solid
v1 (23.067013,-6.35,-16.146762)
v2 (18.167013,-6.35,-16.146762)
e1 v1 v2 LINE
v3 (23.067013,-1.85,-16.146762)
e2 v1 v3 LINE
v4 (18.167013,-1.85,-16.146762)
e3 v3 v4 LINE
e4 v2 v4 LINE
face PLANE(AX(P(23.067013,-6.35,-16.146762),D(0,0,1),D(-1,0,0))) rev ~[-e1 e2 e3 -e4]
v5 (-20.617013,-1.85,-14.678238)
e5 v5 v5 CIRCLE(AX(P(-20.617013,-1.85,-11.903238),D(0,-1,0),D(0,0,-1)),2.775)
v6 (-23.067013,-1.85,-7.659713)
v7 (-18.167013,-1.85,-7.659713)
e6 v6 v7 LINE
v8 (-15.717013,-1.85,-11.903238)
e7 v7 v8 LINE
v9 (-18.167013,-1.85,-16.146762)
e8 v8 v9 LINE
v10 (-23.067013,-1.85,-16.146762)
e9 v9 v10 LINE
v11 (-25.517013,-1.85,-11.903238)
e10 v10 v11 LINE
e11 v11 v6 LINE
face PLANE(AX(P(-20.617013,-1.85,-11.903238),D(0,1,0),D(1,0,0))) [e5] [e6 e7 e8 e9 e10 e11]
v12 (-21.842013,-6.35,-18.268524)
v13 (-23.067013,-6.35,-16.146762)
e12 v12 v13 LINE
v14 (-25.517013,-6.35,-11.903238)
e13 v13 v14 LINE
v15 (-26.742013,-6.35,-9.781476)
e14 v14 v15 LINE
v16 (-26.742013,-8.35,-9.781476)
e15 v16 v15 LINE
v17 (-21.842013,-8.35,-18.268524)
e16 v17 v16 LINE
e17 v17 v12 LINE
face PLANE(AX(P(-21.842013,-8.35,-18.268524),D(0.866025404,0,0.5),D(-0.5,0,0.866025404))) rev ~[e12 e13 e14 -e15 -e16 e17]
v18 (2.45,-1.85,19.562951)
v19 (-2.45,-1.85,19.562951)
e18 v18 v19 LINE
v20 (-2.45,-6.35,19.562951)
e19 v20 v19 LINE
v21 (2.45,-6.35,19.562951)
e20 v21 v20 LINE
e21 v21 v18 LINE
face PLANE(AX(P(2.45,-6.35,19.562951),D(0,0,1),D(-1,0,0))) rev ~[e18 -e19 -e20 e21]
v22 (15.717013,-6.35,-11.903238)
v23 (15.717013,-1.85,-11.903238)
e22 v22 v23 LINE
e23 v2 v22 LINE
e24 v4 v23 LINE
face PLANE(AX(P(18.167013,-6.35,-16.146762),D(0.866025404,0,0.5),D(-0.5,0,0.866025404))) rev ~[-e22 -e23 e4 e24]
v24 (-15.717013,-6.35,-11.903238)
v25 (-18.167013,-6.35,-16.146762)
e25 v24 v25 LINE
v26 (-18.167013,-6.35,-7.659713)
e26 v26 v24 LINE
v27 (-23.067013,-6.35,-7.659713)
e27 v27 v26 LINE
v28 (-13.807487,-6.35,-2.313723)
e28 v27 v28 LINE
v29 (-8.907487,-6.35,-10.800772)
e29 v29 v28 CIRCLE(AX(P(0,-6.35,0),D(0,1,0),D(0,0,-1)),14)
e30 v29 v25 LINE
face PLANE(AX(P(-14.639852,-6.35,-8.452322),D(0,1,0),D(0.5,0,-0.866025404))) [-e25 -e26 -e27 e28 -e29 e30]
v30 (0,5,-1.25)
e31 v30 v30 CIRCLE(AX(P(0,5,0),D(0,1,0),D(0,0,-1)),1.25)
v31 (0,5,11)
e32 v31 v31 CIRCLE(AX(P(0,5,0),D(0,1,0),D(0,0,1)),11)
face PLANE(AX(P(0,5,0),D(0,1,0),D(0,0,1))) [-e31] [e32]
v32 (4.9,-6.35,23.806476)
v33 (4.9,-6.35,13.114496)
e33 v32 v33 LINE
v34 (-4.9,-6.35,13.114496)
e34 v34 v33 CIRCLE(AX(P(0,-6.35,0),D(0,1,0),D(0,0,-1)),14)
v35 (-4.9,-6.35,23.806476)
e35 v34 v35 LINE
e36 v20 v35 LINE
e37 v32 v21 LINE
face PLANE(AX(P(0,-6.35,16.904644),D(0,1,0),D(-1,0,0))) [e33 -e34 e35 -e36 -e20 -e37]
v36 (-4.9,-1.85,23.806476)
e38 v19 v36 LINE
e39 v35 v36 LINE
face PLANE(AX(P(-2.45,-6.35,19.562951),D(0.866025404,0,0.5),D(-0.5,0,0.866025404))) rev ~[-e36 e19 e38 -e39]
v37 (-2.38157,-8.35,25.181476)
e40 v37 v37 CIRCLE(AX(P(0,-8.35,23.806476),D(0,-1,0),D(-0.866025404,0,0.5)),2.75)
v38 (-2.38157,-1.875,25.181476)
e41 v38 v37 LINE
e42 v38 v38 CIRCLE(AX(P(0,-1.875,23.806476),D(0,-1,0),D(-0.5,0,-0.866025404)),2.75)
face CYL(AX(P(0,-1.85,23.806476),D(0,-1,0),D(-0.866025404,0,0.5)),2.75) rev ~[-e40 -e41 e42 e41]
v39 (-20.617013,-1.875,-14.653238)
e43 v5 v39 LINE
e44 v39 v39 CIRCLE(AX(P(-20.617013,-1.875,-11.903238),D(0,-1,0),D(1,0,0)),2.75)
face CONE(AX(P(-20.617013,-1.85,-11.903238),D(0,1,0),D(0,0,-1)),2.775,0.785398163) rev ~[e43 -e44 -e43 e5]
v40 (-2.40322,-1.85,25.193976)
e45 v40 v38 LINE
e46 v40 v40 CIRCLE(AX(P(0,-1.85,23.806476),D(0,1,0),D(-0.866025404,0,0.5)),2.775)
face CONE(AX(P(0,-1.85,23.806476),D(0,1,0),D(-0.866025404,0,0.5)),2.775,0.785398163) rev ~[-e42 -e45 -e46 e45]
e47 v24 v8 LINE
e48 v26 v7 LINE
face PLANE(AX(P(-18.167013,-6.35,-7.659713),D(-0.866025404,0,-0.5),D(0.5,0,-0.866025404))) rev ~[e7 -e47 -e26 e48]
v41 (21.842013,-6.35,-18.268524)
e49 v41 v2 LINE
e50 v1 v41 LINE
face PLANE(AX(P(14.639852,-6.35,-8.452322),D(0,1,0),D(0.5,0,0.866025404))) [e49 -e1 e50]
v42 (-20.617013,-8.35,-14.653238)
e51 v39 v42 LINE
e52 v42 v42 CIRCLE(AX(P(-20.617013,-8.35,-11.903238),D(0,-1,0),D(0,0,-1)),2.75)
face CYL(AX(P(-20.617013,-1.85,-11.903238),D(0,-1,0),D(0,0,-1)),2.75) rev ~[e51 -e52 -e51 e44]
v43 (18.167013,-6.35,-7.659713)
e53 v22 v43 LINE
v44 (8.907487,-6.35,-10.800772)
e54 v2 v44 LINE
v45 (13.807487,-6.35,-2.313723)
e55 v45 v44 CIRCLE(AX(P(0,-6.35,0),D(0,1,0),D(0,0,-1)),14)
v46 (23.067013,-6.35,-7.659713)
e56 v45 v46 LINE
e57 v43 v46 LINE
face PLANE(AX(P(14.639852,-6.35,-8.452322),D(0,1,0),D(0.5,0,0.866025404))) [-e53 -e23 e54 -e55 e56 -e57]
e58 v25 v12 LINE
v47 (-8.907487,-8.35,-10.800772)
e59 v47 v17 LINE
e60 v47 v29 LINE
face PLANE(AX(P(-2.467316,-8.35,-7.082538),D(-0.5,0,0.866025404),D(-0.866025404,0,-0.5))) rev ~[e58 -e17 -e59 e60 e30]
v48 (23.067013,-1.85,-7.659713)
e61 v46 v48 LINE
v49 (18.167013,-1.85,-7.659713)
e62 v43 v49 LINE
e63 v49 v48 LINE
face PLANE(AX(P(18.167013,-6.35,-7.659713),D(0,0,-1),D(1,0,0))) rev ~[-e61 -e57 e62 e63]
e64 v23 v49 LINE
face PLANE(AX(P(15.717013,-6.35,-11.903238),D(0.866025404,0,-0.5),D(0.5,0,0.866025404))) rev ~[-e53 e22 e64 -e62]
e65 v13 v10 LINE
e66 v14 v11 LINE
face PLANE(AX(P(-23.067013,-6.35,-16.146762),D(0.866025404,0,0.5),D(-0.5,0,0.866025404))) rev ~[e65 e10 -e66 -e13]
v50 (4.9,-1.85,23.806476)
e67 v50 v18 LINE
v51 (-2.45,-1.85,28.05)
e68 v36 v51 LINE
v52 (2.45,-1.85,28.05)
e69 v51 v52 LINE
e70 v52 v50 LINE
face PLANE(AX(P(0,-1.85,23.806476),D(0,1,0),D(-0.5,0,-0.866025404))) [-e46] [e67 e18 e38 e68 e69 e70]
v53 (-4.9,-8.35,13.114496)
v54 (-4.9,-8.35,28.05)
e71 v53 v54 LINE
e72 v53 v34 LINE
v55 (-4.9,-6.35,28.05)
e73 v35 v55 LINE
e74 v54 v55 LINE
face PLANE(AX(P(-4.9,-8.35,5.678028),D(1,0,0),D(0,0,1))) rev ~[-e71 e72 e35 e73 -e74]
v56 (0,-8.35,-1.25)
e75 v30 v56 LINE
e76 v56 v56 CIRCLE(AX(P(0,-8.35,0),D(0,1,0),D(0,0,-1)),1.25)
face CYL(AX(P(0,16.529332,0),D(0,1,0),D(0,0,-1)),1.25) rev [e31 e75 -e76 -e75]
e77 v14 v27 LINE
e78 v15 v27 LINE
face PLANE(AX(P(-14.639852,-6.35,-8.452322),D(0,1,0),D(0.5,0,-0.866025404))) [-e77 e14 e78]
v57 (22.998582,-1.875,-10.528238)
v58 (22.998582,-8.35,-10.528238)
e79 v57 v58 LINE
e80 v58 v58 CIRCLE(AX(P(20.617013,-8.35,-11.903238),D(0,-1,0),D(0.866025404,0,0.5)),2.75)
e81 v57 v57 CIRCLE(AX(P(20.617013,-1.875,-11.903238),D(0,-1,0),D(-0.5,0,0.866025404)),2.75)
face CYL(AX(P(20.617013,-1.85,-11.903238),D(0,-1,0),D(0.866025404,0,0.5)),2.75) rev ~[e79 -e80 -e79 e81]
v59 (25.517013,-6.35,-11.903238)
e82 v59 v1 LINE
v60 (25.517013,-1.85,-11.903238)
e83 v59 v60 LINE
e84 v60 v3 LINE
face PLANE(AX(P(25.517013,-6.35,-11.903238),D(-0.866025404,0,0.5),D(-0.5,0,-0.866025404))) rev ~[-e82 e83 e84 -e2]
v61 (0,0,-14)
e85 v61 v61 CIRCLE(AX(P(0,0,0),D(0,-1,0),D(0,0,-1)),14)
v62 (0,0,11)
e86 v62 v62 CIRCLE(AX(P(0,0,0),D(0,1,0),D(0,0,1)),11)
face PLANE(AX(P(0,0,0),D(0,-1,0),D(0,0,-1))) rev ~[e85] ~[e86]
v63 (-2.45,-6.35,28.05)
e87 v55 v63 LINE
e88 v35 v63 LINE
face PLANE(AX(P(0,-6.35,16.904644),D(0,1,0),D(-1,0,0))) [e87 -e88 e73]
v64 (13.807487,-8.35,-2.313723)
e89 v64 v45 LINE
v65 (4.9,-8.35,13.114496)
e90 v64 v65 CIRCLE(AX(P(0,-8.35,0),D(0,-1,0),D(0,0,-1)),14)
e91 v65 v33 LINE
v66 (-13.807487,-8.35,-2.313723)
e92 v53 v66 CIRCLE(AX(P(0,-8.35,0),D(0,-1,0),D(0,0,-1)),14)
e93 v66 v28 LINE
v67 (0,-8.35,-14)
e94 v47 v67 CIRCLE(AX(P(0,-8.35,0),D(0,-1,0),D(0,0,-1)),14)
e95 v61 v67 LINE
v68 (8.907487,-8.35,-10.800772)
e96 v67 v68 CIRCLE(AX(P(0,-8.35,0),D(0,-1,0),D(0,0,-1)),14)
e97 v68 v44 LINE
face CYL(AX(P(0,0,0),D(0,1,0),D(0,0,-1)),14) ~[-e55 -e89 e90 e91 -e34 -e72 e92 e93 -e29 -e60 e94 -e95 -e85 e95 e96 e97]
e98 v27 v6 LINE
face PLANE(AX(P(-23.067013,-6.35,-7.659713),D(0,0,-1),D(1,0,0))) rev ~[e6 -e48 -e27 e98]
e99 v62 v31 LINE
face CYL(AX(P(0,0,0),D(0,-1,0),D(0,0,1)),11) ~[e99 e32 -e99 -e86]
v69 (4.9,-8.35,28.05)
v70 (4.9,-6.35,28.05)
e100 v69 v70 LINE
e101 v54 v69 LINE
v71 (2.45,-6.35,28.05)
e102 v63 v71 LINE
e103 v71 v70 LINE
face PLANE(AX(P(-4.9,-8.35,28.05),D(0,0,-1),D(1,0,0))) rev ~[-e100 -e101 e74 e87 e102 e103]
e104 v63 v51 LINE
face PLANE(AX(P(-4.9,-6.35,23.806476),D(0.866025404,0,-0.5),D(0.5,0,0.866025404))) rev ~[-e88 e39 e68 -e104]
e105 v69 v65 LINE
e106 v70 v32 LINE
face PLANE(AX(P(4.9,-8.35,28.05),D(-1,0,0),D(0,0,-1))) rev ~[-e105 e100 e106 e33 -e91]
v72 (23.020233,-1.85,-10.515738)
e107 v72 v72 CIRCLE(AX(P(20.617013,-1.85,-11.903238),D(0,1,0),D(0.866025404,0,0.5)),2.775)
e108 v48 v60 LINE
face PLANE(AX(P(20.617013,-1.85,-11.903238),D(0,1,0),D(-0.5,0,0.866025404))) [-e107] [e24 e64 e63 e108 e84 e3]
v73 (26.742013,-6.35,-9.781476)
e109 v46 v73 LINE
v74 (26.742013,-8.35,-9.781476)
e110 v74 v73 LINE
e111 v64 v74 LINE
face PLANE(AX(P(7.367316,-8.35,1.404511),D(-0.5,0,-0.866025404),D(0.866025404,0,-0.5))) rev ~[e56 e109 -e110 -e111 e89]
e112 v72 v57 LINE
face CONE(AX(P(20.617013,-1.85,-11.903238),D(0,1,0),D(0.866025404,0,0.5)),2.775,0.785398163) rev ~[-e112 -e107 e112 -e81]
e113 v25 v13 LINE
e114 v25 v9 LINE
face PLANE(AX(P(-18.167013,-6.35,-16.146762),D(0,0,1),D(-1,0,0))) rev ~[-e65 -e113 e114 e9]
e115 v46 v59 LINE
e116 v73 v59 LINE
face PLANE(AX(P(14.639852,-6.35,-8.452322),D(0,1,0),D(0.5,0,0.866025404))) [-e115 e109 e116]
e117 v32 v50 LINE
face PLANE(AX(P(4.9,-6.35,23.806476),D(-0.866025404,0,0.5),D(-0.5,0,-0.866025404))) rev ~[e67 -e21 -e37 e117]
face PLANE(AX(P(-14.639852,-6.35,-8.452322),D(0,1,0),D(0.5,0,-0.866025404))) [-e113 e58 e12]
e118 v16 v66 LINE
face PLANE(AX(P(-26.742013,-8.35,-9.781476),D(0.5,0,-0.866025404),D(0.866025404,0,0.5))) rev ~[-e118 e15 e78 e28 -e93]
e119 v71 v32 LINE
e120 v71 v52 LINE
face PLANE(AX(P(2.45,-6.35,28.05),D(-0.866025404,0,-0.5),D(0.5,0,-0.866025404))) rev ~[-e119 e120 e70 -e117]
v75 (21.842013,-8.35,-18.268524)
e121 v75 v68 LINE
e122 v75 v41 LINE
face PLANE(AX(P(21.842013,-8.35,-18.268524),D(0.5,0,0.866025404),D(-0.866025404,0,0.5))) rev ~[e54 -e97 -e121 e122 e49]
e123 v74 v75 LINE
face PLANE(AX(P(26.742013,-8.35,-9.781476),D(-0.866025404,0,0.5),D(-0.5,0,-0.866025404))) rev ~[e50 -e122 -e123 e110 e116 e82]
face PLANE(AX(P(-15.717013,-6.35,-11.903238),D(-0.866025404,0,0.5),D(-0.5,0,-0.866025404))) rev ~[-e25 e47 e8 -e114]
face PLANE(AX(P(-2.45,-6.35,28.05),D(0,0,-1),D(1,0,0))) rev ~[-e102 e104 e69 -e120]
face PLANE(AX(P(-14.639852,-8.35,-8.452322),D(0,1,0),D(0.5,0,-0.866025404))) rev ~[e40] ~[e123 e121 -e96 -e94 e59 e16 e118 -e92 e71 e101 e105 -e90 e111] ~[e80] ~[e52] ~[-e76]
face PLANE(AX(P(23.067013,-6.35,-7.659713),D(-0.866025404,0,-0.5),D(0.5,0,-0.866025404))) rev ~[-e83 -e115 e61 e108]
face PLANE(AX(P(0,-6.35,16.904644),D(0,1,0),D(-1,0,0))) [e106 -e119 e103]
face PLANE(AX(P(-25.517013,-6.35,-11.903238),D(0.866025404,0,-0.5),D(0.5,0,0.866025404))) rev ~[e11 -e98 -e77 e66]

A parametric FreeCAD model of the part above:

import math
import FreeCAD as App
import Part
import Sketcher
Q = App.Units.Quantity

doc = App.newDocument("Part")
body = doc.addObject("PartDesign::Body", "Body")

# Sketch on XZ plane
sketch1 = body.newObject("Sketcher::SketchObject", "Sketch")
sketch1.AttachmentSupport = (doc.getObject("XZ_Plane"), [""])
sketch1.MapMode = "FlatFace"
sketch1.addGeometry(Part.Circle(App.Vector(0, 0, 0), App.Vector(0, 0, 1), 11), False)
sketch1.addConstraint([
    Sketcher.Constraint("Coincident", 0, 3, -1, 1),
    Sketcher.Constraint("Diameter", 0, 22.0),
])
pad1 = body.newObject("PartDesign::Pad", "Pad")
pad1.Profile = sketch1
pad1.Length = 5
pad1.Reversed = True

# Sketch on XZ plane
sketch2 = body.newObject("Sketcher::SketchObject", "Sketch001")
sketch2.AttachmentSupport = (doc.getObject("XZ_Plane"), [""])
sketch2.MapMode = "FlatFace"
sketch2.addGeometry(Part.Circle(App.Vector(0, 0, 0), App.Vector(0, 0, 1), 14), False)
sketch2.addConstraint([
    Sketcher.Constraint("Coincident", 0, 3, -1, 1),
    Sketcher.Constraint("Diameter", 0, 28.0),
])
pad2 = body.newObject("PartDesign::Pad", "Pad001")
pad2.Profile = sketch2
pad2.Length = 8.35

# Sketch on XZ plane
sketch3 = body.newObject("Sketcher::SketchObject", "Sketch002")
sketch3.AttachmentSupport = (doc.getObject("XZ_Plane"), [""])
sketch3.MapMode = "FlatFace"
sketch3.AttachmentOffset = App.Placement(App.Vector(0, 0, 8.35), App.Rotation())
sketch3.addGeometry(Part.Circle(App.Vector(0, 0, 0), App.Vector(0, 0, 1), 1.2), False)
sketch3.addConstraint([
    Sketcher.Constraint("Coincident", 0, 3, -1, 1),
    Sketcher.Constraint("Diameter", 0, 2.5),
])
pocket1 = body.newObject("PartDesign::Pocket", "Pocket")
pocket1.Profile = sketch3
pocket1.Type = "ThroughAll"
pocket1.Midplane = True

# Sketch on XZ plane
sketch4 = body.newObject("Sketcher::SketchObject", "Sketch003")
sketch4.AttachmentSupport = (doc.getObject("XZ_Plane"), [""])
sketch4.MapMode = "FlatFace"
sketch4.AttachmentOffset = App.Placement(App.Vector(0, 0, 8.35), App.Rotation())
sketch4.addGeometry([
    Part.LineSegment(App.Vector(5, 28, 0), App.Vector(-5, 28, 0)),
    Part.LineSegment(App.Vector(-5, 28, 0), App.Vector(-5, 6, 0)),
    Part.ArcOfCircle(Part.Circle(App.Vector(0, 0, 0), App.Vector(0, 0, 1), 8), math.radians(49), math.radians(131)),
    Part.LineSegment(App.Vector(5, 6, 0), App.Vector(5, 28, 0)),
], False)
sketch4.addConstraint([
    Sketcher.Constraint("Coincident", 0, 2, 1, 1),
    Sketcher.Constraint("Coincident", 1, 2, 2, 2),
    Sketcher.Constraint("Coincident", 2, 1, 3, 1),
    Sketcher.Constraint("Coincident", 3, 2, 0, 1),
    Sketcher.Constraint("Horizontal", 0),
    Sketcher.Constraint("Vertical", 1),
    Sketcher.Constraint("Vertical", 3),
    Sketcher.Constraint("Coincident", 2, 3, -1, 1),
    Sketcher.Constraint("Horizontal", 1, 2, 2, 1),
    Sketcher.Constraint("Radius", 2, 7.5),
    Sketcher.Constraint("DistanceX", 0, 2, 0, 1, 9.8),
    Sketcher.Constraint("DistanceY", -1, 1, 0, 2, 28.05),
])
pad3 = body.newObject("PartDesign::Pad", "Pad002")
pad3.Profile = sketch4
pad3.Length = 2
pad3.Reversed = True
doc.recompute()

polarpattern = body.newObject("PartDesign::PolarPattern", "PolarPattern")
polarpattern.Originals = [pad3]
polarpattern.Axis = (doc.getObject("Y_Axis"), [""])
polarpattern.Angle = 360
polarpattern.Occurrences = 3
body.Tip = polarpattern

# Sketch on XZ plane
sketch5 = body.newObject("Sketcher::SketchObject", "Sketch004")
sketch5.AttachmentSupport = (doc.getObject("XZ_Plane"), [""])
sketch5.MapMode = "FlatFace"
sketch5.AttachmentOffset = App.Placement(App.Vector(0, 0, 6.35), App.Rotation())
sketch5.addGeometry([
    Part.LineSegment(App.Vector(-23.1, -16.1, 0), App.Vector(-25.5, -11.9, 0)),  # 0
    Part.LineSegment(App.Vector(-25.5, -11.9, 0), App.Vector(-23.1, -7.7, 0)),  # 1
    Part.LineSegment(App.Vector(-23.1, -7.7, 0), App.Vector(-18.2, -7.7, 0)),  # 2
    Part.LineSegment(App.Vector(-18.2, -7.7, 0), App.Vector(-15.7, -11.9, 0)),  # 3
    Part.LineSegment(App.Vector(-15.7, -11.9, 0), App.Vector(-18.2, -16.1, 0)),  # 4
    Part.LineSegment(App.Vector(-18.2, -16.1, 0), App.Vector(-23.1, -16.1, 0)),  # 5
], False)
sketch5.addConstraint([
    Sketcher.Constraint("Coincident", 0, 2, 1, 1),
    Sketcher.Constraint("Coincident", 1, 2, 2, 1),
    Sketcher.Constraint("Coincident", 2, 2, 3, 1),
    Sketcher.Constraint("Coincident", 3, 2, 4, 1),
    Sketcher.Constraint("Coincident", 4, 2, 5, 1),
    Sketcher.Constraint("Coincident", 5, 2, 0, 1),
    Sketcher.Constraint("Horizontal", 2),
    Sketcher.Constraint("Horizontal", 5),
    Sketcher.Constraint("Parallel", 0, 3),
    Sketcher.Constraint("Parallel", 1, 4),
    Sketcher.Constraint("Horizontal", 0, 2, 3, 2),
    Sketcher.Constraint("Vertical", 2, 2, 4, 2),
    Sketcher.Constraint("Vertical", 1, 2, 5, 2),
    Sketcher.Constraint("Angle", 0, Q("120 deg")),
    Sketcher.Constraint("DistanceX", 2, 1, 2, 2, 4.9),
    Sketcher.Constraint("Distance", 0, 4.9),
    Sketcher.Constraint("DistanceX", 0, 2, -1, 1, 25.517013),
    Sketcher.Constraint("DistanceY", 0, 2, -1, 1, 11.903238),
])
pad4 = body.newObject("PartDesign::Pad", "Pad003")
pad4.Profile = sketch5
pad4.Length = 4.5
pad4.Reversed = True
doc.recompute()

polarpattern2 = body.newObject("PartDesign::PolarPattern", "PolarPattern001")
polarpattern2.Originals = [pad4]
polarpattern2.Axis = (doc.getObject("Y_Axis"), [""])
polarpattern2.Angle = 360
polarpattern2.Occurrences = 3
body.Tip = polarpattern2

# Sketch on XZ plane
sketch6 = body.newObject("Sketcher::SketchObject", "Sketch005")
sketch6.AttachmentSupport = (doc.getObject("XZ_Plane"), [""])
sketch6.MapMode = "FlatFace"
sketch6.AttachmentOffset = App.Placement(App.Vector(0, 0, 1.85), App.Rotation())
sketch6.addGeometry(Part.Circle(App.Vector(-20.6, -11.9, 0), App.Vector(0, 0, 1), 2.8), False)
sketch6.addConstraint([
    Sketcher.Constraint("Diameter", 0, 5.5),
    Sketcher.Constraint("DistanceX", 0, 3, -1, 1, 20.617013),
    Sketcher.Constraint("DistanceY", 0, 3, -1, 1, 11.903238),
])
doc.recompute()
hole = body.newObject("PartDesign::Hole", "Hole")
hole.Profile = sketch6
hole.ThreadType = "None"
hole.Diameter = 5.5
hole.DepthType = "ThroughAll"
hole.HoleCutType = "Countersink"
hole.HoleCutDiameter = 5.55
hole.HoleCutCountersinkAngle = 90
hole.Reversed = True
doc.recompute()

polarpattern3 = body.newObject("PartDesign::PolarPattern", "PolarPattern002")
polarpattern3.Originals = [hole]
polarpattern3.Axis = (doc.getObject("Y_Axis"), [""])
polarpattern3.Angle = 360
polarpattern3.Occurrences = 3
body.Tip = polarpattern3

doc.recompute()
